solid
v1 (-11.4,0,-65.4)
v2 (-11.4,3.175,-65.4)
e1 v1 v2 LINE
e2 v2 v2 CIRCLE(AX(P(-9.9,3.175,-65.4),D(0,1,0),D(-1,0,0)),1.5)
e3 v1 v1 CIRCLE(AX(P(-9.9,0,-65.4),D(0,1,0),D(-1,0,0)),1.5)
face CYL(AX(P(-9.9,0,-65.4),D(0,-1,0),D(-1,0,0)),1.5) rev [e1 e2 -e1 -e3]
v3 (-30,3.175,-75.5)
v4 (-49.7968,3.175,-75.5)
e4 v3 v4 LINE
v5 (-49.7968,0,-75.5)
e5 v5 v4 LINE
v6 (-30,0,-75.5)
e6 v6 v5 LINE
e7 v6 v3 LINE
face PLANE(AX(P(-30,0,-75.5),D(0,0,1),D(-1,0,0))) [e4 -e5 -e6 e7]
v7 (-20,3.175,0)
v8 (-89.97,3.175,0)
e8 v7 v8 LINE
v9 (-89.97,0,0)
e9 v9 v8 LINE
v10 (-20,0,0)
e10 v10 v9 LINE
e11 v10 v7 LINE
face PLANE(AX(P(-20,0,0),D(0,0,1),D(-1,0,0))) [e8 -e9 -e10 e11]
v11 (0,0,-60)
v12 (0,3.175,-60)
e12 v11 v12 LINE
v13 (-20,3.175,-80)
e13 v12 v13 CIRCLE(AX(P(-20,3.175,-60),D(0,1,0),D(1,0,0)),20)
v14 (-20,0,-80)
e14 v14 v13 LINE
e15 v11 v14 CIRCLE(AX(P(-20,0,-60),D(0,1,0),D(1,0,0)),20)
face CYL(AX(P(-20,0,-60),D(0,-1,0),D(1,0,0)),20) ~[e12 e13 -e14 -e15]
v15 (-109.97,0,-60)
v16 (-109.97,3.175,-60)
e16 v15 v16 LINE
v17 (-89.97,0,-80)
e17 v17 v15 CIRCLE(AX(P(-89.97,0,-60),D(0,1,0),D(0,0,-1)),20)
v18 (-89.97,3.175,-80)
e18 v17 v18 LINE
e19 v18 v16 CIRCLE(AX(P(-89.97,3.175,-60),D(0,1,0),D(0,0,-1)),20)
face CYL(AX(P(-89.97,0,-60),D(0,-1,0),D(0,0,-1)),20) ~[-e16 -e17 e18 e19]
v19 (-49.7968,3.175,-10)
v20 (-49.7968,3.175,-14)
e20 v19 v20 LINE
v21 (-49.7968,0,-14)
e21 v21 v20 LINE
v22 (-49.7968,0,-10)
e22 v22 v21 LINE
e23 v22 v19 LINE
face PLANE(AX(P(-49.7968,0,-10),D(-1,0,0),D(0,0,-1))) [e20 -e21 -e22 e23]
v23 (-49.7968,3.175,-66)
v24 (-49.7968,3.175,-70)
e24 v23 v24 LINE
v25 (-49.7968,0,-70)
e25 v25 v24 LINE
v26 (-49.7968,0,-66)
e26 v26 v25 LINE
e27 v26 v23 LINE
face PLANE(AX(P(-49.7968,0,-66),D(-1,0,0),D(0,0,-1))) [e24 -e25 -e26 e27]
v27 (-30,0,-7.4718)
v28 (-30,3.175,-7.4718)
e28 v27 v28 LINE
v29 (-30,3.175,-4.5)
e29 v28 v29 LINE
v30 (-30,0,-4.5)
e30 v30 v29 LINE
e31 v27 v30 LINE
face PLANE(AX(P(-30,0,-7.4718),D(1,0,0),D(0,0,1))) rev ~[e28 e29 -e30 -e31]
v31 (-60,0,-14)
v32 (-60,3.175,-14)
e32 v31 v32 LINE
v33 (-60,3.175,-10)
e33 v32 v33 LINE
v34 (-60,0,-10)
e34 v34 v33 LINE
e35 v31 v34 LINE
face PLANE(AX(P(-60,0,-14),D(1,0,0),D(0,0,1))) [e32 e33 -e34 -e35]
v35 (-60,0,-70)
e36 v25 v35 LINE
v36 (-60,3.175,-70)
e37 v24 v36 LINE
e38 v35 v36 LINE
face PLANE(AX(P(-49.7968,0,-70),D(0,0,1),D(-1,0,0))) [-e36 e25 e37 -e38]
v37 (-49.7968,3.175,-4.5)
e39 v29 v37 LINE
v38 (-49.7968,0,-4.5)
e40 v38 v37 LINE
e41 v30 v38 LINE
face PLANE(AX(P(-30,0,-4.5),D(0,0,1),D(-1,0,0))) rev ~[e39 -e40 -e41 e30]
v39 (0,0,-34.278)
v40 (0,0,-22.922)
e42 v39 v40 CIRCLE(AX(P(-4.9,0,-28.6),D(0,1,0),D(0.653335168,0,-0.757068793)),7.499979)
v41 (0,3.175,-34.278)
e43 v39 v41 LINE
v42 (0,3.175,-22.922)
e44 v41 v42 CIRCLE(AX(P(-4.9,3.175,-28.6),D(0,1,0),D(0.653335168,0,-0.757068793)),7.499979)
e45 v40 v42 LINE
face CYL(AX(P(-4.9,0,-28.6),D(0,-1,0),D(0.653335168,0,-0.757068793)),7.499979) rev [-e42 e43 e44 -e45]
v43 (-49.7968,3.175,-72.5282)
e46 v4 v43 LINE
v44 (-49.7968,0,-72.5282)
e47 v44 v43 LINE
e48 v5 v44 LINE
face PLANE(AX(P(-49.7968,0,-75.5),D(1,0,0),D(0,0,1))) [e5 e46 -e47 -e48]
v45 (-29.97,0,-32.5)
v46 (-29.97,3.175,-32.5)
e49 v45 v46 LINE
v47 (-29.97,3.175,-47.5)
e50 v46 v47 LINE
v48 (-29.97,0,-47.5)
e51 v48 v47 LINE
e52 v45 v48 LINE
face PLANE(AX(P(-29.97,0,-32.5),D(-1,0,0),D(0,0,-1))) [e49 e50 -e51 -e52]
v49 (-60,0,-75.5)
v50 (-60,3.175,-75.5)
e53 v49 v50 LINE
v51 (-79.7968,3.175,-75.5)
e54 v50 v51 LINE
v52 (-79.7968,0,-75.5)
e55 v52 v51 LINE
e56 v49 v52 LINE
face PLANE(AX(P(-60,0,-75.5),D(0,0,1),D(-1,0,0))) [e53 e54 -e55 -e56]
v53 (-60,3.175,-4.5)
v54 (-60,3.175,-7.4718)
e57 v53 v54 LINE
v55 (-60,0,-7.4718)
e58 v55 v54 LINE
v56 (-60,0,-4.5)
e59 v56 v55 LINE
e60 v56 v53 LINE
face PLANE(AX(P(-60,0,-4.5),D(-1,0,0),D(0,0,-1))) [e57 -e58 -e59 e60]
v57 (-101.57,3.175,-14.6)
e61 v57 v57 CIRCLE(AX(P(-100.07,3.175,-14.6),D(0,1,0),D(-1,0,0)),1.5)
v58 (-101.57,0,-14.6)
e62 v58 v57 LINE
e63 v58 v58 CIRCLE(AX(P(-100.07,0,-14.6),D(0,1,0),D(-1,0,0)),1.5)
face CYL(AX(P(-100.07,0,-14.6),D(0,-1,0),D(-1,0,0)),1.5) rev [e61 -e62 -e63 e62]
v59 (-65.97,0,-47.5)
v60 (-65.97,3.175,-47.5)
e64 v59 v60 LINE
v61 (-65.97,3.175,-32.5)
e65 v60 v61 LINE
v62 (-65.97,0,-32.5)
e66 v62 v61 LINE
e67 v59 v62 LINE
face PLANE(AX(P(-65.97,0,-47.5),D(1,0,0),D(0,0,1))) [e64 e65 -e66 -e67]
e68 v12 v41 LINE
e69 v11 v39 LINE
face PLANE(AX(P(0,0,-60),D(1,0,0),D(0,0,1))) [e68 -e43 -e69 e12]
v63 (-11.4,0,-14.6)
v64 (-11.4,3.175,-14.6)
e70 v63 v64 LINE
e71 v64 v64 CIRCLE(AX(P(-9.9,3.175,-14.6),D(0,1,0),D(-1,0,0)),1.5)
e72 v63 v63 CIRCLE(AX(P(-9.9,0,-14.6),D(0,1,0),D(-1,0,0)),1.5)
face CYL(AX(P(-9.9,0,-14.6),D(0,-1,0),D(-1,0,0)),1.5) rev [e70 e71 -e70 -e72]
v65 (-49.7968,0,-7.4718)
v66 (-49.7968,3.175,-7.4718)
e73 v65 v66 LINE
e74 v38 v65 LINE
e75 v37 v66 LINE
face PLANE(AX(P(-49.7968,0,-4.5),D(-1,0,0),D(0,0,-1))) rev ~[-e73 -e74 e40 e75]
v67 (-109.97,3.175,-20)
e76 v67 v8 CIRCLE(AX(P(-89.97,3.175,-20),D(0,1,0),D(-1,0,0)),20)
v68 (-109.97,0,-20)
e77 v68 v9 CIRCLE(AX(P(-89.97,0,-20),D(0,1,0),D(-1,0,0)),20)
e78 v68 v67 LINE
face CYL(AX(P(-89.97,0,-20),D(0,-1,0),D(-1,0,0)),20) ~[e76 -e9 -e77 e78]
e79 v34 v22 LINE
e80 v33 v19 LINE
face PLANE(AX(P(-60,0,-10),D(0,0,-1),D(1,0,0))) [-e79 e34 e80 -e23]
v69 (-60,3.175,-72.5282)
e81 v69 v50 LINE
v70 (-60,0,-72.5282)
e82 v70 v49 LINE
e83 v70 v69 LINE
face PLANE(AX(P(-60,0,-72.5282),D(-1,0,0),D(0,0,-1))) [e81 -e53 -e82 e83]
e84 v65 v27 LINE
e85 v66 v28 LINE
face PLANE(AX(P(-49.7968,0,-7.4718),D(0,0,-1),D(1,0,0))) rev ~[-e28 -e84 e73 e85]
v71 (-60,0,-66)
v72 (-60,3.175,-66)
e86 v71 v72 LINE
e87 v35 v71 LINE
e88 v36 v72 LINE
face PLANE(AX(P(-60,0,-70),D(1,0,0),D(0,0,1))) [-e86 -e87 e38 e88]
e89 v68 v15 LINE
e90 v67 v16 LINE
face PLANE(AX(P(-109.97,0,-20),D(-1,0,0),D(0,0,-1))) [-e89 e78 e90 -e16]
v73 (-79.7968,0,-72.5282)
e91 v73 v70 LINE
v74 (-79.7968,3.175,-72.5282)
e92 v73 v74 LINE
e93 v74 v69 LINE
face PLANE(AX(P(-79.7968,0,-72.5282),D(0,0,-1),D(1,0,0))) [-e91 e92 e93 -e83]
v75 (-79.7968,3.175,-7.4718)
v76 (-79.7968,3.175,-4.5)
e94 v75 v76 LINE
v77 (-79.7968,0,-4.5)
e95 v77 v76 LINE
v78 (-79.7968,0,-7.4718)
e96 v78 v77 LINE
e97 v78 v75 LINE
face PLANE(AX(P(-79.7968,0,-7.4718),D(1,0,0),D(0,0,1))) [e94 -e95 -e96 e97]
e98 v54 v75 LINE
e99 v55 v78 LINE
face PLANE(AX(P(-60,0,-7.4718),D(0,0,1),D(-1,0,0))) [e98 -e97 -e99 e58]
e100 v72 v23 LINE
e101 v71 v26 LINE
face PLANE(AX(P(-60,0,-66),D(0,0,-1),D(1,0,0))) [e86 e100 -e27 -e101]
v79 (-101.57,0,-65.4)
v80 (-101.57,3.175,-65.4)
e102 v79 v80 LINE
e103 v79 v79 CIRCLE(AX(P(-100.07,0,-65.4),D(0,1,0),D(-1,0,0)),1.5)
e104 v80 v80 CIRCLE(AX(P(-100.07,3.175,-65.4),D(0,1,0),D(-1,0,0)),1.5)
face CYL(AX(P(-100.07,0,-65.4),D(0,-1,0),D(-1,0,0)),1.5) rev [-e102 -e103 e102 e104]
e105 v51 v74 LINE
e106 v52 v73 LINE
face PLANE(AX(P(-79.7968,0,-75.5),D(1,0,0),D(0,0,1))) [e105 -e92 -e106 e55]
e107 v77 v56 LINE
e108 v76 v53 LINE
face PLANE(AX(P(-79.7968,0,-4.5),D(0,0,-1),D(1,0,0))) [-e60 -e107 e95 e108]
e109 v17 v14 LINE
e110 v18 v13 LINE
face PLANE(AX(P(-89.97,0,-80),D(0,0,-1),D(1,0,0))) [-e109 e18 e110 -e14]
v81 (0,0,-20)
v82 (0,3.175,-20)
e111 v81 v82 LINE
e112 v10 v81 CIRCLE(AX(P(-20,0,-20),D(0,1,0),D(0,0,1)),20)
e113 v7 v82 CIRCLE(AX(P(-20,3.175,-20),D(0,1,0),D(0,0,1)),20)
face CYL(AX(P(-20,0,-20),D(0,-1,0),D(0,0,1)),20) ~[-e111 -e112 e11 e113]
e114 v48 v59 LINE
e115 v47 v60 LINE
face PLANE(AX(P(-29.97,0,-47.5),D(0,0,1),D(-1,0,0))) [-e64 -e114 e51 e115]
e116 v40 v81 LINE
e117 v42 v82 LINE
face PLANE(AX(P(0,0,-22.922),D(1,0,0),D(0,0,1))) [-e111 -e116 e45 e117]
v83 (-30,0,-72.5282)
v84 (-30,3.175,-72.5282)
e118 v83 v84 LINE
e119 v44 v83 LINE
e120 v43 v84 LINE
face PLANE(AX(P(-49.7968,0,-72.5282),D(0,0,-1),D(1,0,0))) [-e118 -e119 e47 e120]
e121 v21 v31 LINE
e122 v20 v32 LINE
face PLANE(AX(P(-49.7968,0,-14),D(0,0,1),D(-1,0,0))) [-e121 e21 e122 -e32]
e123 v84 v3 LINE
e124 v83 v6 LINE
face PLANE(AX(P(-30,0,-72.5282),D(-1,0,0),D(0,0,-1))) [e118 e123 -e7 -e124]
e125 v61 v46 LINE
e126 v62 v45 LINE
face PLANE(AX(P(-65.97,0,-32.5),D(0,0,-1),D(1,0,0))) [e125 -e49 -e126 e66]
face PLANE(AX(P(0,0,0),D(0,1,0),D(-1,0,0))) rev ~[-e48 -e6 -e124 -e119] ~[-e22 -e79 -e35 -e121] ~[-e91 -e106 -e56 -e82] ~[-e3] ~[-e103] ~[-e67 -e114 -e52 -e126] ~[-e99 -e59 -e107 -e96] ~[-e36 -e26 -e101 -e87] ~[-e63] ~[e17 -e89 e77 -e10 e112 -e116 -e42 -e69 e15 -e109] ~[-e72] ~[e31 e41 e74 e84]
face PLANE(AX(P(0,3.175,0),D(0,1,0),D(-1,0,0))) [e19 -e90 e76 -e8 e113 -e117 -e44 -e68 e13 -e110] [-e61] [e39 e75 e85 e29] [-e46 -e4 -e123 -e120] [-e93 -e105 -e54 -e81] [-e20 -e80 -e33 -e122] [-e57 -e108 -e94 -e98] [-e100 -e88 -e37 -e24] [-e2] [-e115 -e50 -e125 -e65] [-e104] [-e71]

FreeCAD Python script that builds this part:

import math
import FreeCAD as App
import Part
import Sketcher
Q = App.Units.Quantity


def add_polygon(sketch, points):
    """Adds a closed chain of lines whose ends are joined by coincident constraints."""
    first, n = sketch.GeometryCount, len(points)
    for a, b in zip(points, points[1:] + points[:1]):
        sketch.addGeometry(Part.LineSegment(App.Vector(*a, 0), App.Vector(*b, 0)), False)
    for i in range(n):
        sketch.addConstraint(Sketcher.Constraint("Coincident", first + i, 2, first + (i + 1) % n, 1))

doc = App.newDocument("Part")
body = doc.addObject("PartDesign::Body", "Body")

# Sketch on XZ plane
sketch1 = body.newObject("Sketcher::SketchObject", "Sketch")
sketch1.AttachmentSupport = (doc.getObject("XZ_Plane"), [""])
sketch1.MapMode = "FlatFace"
sketch1.addGeometry(Part.LineSegment(App.Vector(-90, 0, 0), App.Vector(-20, 0, 0)), False)  # 0
sketch1.addGeometry(Part.ArcOfCircle(Part.Circle(App.Vector(-20, -20, 0), App.Vector(0, 0, 1), 20), math.radians(0), math.radians(90)), False)  # 1
sketch1.addGeometry(Part.LineSegment(App.Vector(0, -20, 0), App.Vector(0, -22.9, 0)), False)  # 2
sketch1.addGeometry(Part.ArcOfCircle(Part.Circle(App.Vector(-4.9, -28.6, 0), App.Vector(0, 0, 1), 7.5), math.radians(49), math.radians(311)), False)  # 3
sketch1.addGeometry(Part.LineSegment(App.Vector(0, -34.3, 0), App.Vector(0, -60, 0)), False)  # 4
sketch1.addGeometry(Part.ArcOfCircle(Part.Circle(App.Vector(-20, -60, 0), App.Vector(0, 0, 1), 20), math.radians(-90), math.radians(0)), False)  # 5
sketch1.addGeometry(Part.LineSegment(App.Vector(-20, -80, 0), App.Vector(-90, -80, 0)), False)  # 6
sketch1.addGeometry(Part.ArcOfCircle(Part.Circle(App.Vector(-90, -60, 0), App.Vector(0, 0, 1), 20), math.radians(180), math.radians(270)), False)  # 7
sketch1.addGeometry(Part.LineSegment(App.Vector(-110, -60, 0), App.Vector(-110, -20, 0)), False)  # 8
sketch1.addGeometry(Part.ArcOfCircle(Part.Circle(App.Vector(-90, -20, 0), App.Vector(0, 0, 1), 20), math.radians(90), math.radians(180)), False)  # 9
sketch1.addGeometry(Part.Circle(App.Vector(-9.9, -65.4, 0), App.Vector(0, 0, 1), 1.5), False)  # 10
add_polygon(sketch1, [(-30, -72.5), (-49.8, -72.5), (-49.8, -75.5), (-30, -75.5)])  # lines 11-14
add_polygon(sketch1, [(-60, -70), (-49.8, -70), (-49.8, -66), (-60, -66)])  # lines 15-18
add_polygon(sketch1, [(-60, -72.5), (-79.8, -72.5), (-79.8, -75.5), (-60, -75.5)])  # lines 19-22
sketch1.addGeometry(Part.Circle(App.Vector(-100.1, -65.4, 0), App.Vector(0, 0, 1), 1.5), False)  # 23
add_polygon(sketch1, [(-30, -32.5), (-66, -32.5), (-66, -47.5), (-30, -47.5)])  # lines 24-27
sketch1.addGeometry(Part.Circle(App.Vector(-9.9, -14.6, 0), App.Vector(0, 0, 1), 1.5), False)  # 28
add_polygon(sketch1, [(-49.8, -10), (-60, -10), (-60, -14), (-49.8, -14)])  # lines 29-32
add_polygon(sketch1, [(-30, -7.5), (-30, -4.5), (-49.8, -4.5), (-49.8, -7.5)])  # lines 33-36
add_polygon(sketch1, [(-60, -4.5), (-79.8, -4.5), (-79.8, -7.5), (-60, -7.5)])  # lines 37-40
sketch1.addGeometry(Part.Circle(App.Vector(-100.1, -14.6, 0), App.Vector(0, 0, 1), 1.5), False)  # 41
sketch1.addConstraint([
    Sketcher.Constraint("Tangent", 0, 2, 1, 2),
    Sketcher.Constraint("Tangent", 1, 1, 2, 1),
    Sketcher.Constraint("Coincident", 2, 2, 3, 1),
    Sketcher.Constraint("Coincident", 3, 2, 4, 1),
    Sketcher.Constraint("Tangent", 4, 2, 5, 2),
    Sketcher.Constraint("Tangent", 5, 1, 6, 1),
    Sketcher.Constraint("Tangent", 6, 2, 7, 2),
    Sketcher.Constraint("Tangent", 7, 1, 8, 1),
    Sketcher.Constraint("Tangent", 8, 2, 9, 2),
    Sketcher.Constraint("Tangent", 9, 1, 0, 1),
    Sketcher.Constraint("Horizontal", 0),
    Sketcher.Constraint("Vertical", 2),
    Sketcher.Constraint("Vertical", 4),
    Sketcher.Constraint("Horizontal", 6),
    Sketcher.Constraint("Vertical", 8),
    Sketcher.Constraint("Horizontal", 11),
    Sketcher.Constraint("Vertical", 12),
    Sketcher.Constraint("Horizontal", 13),
    Sketcher.Constraint("Vertical", 14),
    Sketcher.Constraint("Horizontal", 15),
    Sketcher.Constraint("Vertical", 16),
    Sketcher.Constraint("Horizontal", 17),
    Sketcher.Constraint("Vertical", 18),
    Sketcher.Constraint("Horizontal", 19),
    Sketcher.Constraint("Vertical", 20),
    Sketcher.Constraint("Horizontal", 21),
    Sketcher.Constraint("Vertical", 22),
    Sketcher.Constraint("Horizontal", 24),
    Sketcher.Constraint("Vertical", 25),
    Sketcher.Constraint("Horizontal", 26),
    Sketcher.Constraint("Vertical", 27),
    Sketcher.Constraint("Horizontal", 29),
    Sketcher.Constraint("Vertical", 30),
    Sketcher.Constraint("Horizontal", 31),
    Sketcher.Constraint("Vertical", 32),
    Sketcher.Constraint("Vertical", 33),
    Sketcher.Constraint("Horizontal", 34),
    Sketcher.Constraint("Vertical", 35),
    Sketcher.Constraint("Horizontal", 36),
    Sketcher.Constraint("Horizontal", 37),
    Sketcher.Constraint("Vertical", 38),
    Sketcher.Constraint("Horizontal", 39),
    Sketcher.Constraint("Vertical", 40),
    Sketcher.Constraint("Equal", 1, 5),
    Sketcher.Constraint("Equal", 5, 7),
    Sketcher.Constraint("Equal", 7, 9),
    Sketcher.Constraint("Equal", 10, 23),
    Sketcher.Constraint("Equal", 23, 28),
    Sketcher.Constraint("Equal", 28, 41),
    Sketcher.Constraint("PointOnObject", 0, 2, -1),
    Sketcher.Constraint("PointOnObject", 1, 1, -2),
    Sketcher.Constraint("PointOnObject", 3, 2, -2),
    Sketcher.Constraint("Horizontal", 10, 3, 23, 3),
    Sketcher.Constraint("Horizontal", 28, 3, 41, 3),
    Sketcher.Constraint("Horizontal", 14, 2, 19, 2),
    Sketcher.Constraint("Horizontal", 13, 2, 20, 2),
    Sketcher.Constraint("Horizontal", 34, 2, 37, 2),
    Sketcher.Constraint("Horizontal", 36, 2, 38, 2),
    Sketcher.Constraint("Vertical", 10, 3, 28, 3),
    Sketcher.Constraint("Vertical", 23, 3, 41, 3),
    Sketcher.Constraint("Vertical", 12, 2, 15, 2),
    Sketcher.Constraint("Vertical", 18, 2, 21, 2),
    Sketcher.Constraint("Vertical", 22, 2, 29, 2),
    Sketcher.Constraint("Vertical", 16, 2, 31, 2),
    Sketcher.Constraint("Vertical", 14, 2, 33, 2),
    Sketcher.Constraint("Vertical", 32, 2, 34, 2),
    Sketcher.Constraint("Vertical", 20, 2, 37, 2),
    Sketcher.Constraint("Vertical", 30, 2, 39, 2),
    Sketcher.Constraint("Equal", 13, 19),
    Sketcher.Constraint("Equal", 18, 30),
    Sketcher.Constraint("Equal", 22, 33),
    Sketcher.Constraint("Diameter", 10, Q("3 mm")),
    Sketcher.Constraint("Radius", 1, Q("20 mm")),
    Sketcher.Constraint("Radius", 3, Q("7.5 mm")),
    Sketcher.Constraint("DistanceX", 24, 2, 24, 1, Q("36 mm")),
    Sketcher.Constraint("DistanceY", 16, 1, 16, 2, Q("4 mm")),
    Sketcher.Constraint("DistanceY", 25, 2, 25, 1, Q("15 mm")),
    Sketcher.Constraint("DistanceY", 5, 1, -1, 1, Q("80 mm")),
    Sketcher.Constraint("DistanceY", 29, 2, -1, 1, Q("10 mm")),
    Sketcher.Constraint("DistanceX", 13, 2, 5, 1, Q("10 mm")),
    Sketcher.Constraint("DistanceY", 15, 2, 5, 3, Q("10 mm")),
    Sketcher.Constraint("DistanceX", 10, 3, -1, 1, Q("9.9 mm")),
    Sketcher.Constraint("DistanceY", 28, 3, -1, 1, Q("14.6 mm")),
    Sketcher.Constraint("DistanceY", 24, 2, -1, 1, Q("32.5 mm")),
    Sketcher.Constraint("DistanceY", 33, 2, -1, 1, Q("4.5 mm")),
    Sketcher.Constraint("DistanceY", 5, 1, 10, 3, Q("14.6 mm")),
    Sketcher.Constraint("DistanceX", 7, 1, 23, 3, Q("9.9 mm")),
    Sketcher.Constraint("DistanceY", 5, 1, 12, 2, Q("4.5 mm")),
    Sketcher.Constraint("DistanceX", 7, 1, -1, 1, Q("109.97 mm")),
    Sketcher.Constraint("DistanceX", 11, 2, 11, 1, Q("19.7968 mm")),
    Sketcher.Constraint("DistanceX", 15, 1, 15, 2, Q("10.2032 mm")),
    Sketcher.Constraint("DistanceY", 12, 2, 12, 1, Q("2.9718 mm")),
    Sketcher.Constraint("DistanceX", 10, 3, 3, 3, Q("5 mm")),
    Sketcher.Constraint("DistanceY", 3, 3, 28, 3, Q("14 mm")),
    Sketcher.Constraint("DistanceX", 9, 3, 24, 2, Q("24 mm")),
])
pad1 = body.newObject("PartDesign::Pad", "Pad")
pad1.Profile = sketch1
pad1.Length = 3.175
pad1.Reversed = True

doc.recompute()
